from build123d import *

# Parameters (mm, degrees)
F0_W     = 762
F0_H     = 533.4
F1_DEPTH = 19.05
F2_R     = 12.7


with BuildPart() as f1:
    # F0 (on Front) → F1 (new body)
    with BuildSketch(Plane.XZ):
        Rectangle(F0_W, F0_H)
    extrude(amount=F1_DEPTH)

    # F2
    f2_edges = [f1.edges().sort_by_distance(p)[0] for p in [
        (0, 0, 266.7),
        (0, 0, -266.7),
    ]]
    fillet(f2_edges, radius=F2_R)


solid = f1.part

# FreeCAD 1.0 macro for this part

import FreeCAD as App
import Part
import Sketcher

V = App.Vector
Q = App.Units.Quantity


def edges_at(feature, points):
    """Names of the edges that pass closest to the given points."""
    edges = feature.Shape.Edges
    near = lambda p: min(range(len(edges)), key=lambda i: edges[i].distToShape(Part.Vertex(*p))[0])
    return sorted({f"Edge{near(p) + 1}" for p in points})


def add_polygon(sketch, points):
    """Adds a closed chain of lines whose ends are joined by coincident constraints."""
    first, n = sketch.GeometryCount, len(points)
    for a, b in zip(points, points[1:] + points[:1]):
        sketch.addGeometry(Part.LineSegment(App.Vector(*a, 0), App.Vector(*b, 0)), False)
    for i in range(n):
        sketch.addConstraint(Sketcher.Constraint("Coincident", first + i, 2, first + (i + 1) % n, 1))

doc = App.newDocument("Part")
body = doc.addObject("PartDesign::Body", "Body")

# Sketch on XZ plane
sketch1 = body.newObject("Sketcher::SketchObject", "Sketch")
sketch1.AttachmentSupport = (doc.getObject("XZ_Plane"), [""])
sketch1.MapMode = "FlatFace"
add_polygon(sketch1, [(-381, 266.7), (-381, -266.7), (381, -266.7), (381, 266.7)])  # lines 0-3
sketch1.addConstraint([
    Sketcher.Constraint("Vertical", 0),
    Sketcher.Constraint("Horizontal", 1),
    Sketcher.Constraint("Vertical", 2),
    Sketcher.Constraint("Horizontal", 3),
    Sketcher.Constraint("Symmetric", 0, 2, 2, 2, -1, 1),
    Sketcher.Constraint("DistanceX", 1, 1, 1, 2, Q("30 in")),
    Sketcher.Constraint("DistanceY", 0, 2, 0, 1, Q("21 in")),
])
pad1 = body.newObject("PartDesign::Pad", "Pad")
pad1.Profile = sketch1
pad1.Length = Q("0.75 in")
doc.recompute()

fillet = body.newObject("PartDesign::Fillet", "Fillet")
fillet.Base = (pad1, edges_at(pad1, [(0, 0, 266.7), (0, 0, -266.7)]))
fillet.Radius = Q("0.5 in")

doc.recompute()
